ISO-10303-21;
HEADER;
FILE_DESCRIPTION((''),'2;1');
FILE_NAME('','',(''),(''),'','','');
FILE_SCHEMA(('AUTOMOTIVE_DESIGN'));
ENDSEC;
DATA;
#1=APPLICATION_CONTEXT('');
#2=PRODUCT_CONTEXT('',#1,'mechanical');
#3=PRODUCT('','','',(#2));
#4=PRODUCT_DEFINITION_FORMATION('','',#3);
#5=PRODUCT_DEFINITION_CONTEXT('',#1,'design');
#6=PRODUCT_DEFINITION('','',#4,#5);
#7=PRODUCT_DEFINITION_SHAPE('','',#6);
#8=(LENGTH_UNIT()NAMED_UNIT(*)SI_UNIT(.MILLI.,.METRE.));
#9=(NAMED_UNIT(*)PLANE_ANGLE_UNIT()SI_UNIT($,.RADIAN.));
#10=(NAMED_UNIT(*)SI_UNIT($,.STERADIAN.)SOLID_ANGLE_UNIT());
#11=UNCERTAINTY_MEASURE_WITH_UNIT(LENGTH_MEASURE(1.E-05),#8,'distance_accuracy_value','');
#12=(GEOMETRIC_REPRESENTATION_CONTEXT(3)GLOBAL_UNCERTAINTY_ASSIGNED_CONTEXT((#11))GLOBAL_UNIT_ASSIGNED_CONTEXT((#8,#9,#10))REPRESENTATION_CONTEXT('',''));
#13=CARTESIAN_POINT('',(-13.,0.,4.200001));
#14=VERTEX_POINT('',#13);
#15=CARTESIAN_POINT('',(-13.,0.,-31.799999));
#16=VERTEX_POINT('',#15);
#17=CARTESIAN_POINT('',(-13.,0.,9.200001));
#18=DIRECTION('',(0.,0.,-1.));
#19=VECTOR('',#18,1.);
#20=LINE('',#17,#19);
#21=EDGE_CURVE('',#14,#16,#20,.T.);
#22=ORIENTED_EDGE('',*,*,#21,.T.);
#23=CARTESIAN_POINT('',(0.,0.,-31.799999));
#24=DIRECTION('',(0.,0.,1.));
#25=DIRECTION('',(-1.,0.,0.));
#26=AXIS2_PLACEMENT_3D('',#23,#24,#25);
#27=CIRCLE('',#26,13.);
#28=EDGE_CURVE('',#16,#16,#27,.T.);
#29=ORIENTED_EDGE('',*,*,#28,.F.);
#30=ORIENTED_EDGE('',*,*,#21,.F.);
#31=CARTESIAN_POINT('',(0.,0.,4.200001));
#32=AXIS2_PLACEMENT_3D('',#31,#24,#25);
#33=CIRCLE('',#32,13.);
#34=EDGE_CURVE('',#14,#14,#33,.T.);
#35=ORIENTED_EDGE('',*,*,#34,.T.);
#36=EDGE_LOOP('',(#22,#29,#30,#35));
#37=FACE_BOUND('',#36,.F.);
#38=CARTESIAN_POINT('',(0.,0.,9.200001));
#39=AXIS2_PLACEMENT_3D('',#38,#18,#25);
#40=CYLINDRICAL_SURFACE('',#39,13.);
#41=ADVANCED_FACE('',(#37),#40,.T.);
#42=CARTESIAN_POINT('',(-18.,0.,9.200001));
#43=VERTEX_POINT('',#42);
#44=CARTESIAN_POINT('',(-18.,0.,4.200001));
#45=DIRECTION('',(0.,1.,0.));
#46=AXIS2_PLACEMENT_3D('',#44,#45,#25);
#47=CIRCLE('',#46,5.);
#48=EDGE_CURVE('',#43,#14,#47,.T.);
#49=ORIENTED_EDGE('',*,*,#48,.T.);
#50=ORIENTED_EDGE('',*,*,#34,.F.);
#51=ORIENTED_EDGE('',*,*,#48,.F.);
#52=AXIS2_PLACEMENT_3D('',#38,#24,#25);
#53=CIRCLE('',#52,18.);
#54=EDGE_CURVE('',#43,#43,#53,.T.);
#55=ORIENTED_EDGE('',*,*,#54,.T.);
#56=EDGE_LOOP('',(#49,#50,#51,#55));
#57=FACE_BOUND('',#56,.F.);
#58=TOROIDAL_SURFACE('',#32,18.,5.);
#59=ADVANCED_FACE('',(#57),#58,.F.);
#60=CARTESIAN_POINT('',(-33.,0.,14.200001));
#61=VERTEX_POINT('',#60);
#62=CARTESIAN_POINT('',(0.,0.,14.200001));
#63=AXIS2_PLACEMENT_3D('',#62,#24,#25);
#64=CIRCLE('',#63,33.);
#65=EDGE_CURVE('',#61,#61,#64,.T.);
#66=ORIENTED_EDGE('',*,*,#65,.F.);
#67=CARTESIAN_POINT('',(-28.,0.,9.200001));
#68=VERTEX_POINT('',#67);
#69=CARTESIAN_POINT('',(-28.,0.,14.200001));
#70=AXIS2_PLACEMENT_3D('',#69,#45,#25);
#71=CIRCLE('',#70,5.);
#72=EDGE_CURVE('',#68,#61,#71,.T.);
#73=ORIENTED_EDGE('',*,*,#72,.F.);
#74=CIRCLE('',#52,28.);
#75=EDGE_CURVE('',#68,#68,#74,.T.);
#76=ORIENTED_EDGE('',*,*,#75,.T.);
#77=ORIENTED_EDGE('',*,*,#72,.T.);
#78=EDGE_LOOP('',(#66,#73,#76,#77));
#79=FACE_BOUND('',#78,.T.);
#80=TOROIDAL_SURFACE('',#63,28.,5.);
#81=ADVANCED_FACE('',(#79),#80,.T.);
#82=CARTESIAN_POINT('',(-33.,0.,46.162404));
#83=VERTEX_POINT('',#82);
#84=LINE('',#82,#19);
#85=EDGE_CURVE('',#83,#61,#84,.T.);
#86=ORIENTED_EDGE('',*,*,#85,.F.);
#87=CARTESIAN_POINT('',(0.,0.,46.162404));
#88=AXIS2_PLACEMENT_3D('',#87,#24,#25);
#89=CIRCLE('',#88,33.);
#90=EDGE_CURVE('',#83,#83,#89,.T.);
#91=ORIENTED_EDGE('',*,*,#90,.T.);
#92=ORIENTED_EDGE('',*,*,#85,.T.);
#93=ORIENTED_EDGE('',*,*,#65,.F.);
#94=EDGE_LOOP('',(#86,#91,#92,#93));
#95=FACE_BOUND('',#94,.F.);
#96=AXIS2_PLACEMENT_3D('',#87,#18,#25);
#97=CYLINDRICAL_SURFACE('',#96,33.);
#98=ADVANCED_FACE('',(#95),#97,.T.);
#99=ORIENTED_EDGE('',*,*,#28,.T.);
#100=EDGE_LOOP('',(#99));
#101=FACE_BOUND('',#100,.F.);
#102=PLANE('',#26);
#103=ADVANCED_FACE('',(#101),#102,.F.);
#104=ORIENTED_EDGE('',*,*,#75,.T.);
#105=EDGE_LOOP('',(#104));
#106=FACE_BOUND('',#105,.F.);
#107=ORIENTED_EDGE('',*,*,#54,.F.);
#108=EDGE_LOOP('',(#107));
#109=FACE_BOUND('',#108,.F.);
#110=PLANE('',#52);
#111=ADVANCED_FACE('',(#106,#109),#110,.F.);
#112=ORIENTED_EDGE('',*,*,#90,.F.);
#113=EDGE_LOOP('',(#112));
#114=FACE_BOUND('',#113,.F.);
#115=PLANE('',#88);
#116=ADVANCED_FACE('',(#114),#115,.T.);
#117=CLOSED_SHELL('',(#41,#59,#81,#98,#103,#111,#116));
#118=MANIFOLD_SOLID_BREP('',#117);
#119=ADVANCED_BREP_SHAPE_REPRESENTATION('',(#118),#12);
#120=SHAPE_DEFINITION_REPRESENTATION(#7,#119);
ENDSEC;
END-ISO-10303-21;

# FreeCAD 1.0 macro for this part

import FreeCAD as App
import Part
import Sketcher

V = App.Vector


def edges_at(feature, points):
    """Names of the edges that pass closest to the given points."""
    edges = feature.Shape.Edges
    near = lambda p: min(range(len(edges)), key=lambda i: edges[i].distToShape(Part.Vertex(*p))[0])
    return sorted({f"Edge{near(p) + 1}" for p in points})

doc = App.newDocument("Part")
body = doc.addObject("PartDesign::Body", "Body")

# Sketch on XZ plane
sketch1 = body.newObject("Sketcher::SketchObject", "Sketch")
sketch1.AttachmentSupport = (doc.getObject("XZ_Plane"), [""])
sketch1.MapMode = "FlatFace"
sketch1.addGeometry([
    Part.LineSegment(V(-33, 9, 0), V(-13, 9, 0)),  # 0
    Part.LineSegment(V(-13, 9, 0), V(-13, -32, 0)),  # 1
    Part.LineSegment(V(-13, -32, 0), V(0, -32, 0)),  # 2
    Part.LineSegment(V(0, -32, 0), V(0, 46, 0)),  # 3
    Part.LineSegment(V(0, 46, 0), V(-33, 46, 0)),  # 4
    Part.LineSegment(V(-33, 46, 0), V(-33, 9, 0)),  # 5
], False)
sketch1.addConstraint([
    Sketcher.Constraint("Coincident", 0, 2, 1, 1),
    Sketcher.Constraint("Coincident", 1, 2, 2, 1),
    Sketcher.Constraint("Coincident", 2, 2, 3, 1),
    Sketcher.Constraint("Coincident", 3, 2, 4, 1),
    Sketcher.Constraint("Coincident", 4, 2, 5, 1),
    Sketcher.Constraint("Coincident", 5, 2, 0, 1),
    Sketcher.Constraint("Horizontal", 0),
    Sketcher.Constraint("Vertical", 1),
    Sketcher.Constraint("Horizontal", 2),
    Sketcher.Constraint("Vertical", 3),
    Sketcher.Constraint("Horizontal", 4),
    Sketcher.Constraint("Vertical", 5),
    Sketcher.Constraint("PointOnObject", 2, 2, -2),
    Sketcher.Constraint("DistanceX", 0, 1, 0, 2, 20.0),
    Sketcher.Constraint("DistanceX", 2, 1, 2, 2, 13.0),
    Sketcher.Constraint("DistanceY", 1, 2, 1, 1, 41.0),
    Sketcher.Constraint("DistanceY", -1, 1, 0, 2, 9.200001),
    Sketcher.Constraint("DistanceY", 3, 1, 3, 2, 77.962403),
])
revolution = body.newObject("PartDesign::Revolution", "Revolution")
revolution.Profile = sketch1
revolution.ReferenceAxis = (sketch1, ["V_Axis"])
revolution.Angle = 360
doc.recompute()

fillet = body.newObject("PartDesign::Fillet", "Fillet")
fillet.Base = (revolution, edges_at(revolution, [(13, 0, 9.2), (33, 0, 9.2)]))
fillet.Radius = 5

doc.recompute()
